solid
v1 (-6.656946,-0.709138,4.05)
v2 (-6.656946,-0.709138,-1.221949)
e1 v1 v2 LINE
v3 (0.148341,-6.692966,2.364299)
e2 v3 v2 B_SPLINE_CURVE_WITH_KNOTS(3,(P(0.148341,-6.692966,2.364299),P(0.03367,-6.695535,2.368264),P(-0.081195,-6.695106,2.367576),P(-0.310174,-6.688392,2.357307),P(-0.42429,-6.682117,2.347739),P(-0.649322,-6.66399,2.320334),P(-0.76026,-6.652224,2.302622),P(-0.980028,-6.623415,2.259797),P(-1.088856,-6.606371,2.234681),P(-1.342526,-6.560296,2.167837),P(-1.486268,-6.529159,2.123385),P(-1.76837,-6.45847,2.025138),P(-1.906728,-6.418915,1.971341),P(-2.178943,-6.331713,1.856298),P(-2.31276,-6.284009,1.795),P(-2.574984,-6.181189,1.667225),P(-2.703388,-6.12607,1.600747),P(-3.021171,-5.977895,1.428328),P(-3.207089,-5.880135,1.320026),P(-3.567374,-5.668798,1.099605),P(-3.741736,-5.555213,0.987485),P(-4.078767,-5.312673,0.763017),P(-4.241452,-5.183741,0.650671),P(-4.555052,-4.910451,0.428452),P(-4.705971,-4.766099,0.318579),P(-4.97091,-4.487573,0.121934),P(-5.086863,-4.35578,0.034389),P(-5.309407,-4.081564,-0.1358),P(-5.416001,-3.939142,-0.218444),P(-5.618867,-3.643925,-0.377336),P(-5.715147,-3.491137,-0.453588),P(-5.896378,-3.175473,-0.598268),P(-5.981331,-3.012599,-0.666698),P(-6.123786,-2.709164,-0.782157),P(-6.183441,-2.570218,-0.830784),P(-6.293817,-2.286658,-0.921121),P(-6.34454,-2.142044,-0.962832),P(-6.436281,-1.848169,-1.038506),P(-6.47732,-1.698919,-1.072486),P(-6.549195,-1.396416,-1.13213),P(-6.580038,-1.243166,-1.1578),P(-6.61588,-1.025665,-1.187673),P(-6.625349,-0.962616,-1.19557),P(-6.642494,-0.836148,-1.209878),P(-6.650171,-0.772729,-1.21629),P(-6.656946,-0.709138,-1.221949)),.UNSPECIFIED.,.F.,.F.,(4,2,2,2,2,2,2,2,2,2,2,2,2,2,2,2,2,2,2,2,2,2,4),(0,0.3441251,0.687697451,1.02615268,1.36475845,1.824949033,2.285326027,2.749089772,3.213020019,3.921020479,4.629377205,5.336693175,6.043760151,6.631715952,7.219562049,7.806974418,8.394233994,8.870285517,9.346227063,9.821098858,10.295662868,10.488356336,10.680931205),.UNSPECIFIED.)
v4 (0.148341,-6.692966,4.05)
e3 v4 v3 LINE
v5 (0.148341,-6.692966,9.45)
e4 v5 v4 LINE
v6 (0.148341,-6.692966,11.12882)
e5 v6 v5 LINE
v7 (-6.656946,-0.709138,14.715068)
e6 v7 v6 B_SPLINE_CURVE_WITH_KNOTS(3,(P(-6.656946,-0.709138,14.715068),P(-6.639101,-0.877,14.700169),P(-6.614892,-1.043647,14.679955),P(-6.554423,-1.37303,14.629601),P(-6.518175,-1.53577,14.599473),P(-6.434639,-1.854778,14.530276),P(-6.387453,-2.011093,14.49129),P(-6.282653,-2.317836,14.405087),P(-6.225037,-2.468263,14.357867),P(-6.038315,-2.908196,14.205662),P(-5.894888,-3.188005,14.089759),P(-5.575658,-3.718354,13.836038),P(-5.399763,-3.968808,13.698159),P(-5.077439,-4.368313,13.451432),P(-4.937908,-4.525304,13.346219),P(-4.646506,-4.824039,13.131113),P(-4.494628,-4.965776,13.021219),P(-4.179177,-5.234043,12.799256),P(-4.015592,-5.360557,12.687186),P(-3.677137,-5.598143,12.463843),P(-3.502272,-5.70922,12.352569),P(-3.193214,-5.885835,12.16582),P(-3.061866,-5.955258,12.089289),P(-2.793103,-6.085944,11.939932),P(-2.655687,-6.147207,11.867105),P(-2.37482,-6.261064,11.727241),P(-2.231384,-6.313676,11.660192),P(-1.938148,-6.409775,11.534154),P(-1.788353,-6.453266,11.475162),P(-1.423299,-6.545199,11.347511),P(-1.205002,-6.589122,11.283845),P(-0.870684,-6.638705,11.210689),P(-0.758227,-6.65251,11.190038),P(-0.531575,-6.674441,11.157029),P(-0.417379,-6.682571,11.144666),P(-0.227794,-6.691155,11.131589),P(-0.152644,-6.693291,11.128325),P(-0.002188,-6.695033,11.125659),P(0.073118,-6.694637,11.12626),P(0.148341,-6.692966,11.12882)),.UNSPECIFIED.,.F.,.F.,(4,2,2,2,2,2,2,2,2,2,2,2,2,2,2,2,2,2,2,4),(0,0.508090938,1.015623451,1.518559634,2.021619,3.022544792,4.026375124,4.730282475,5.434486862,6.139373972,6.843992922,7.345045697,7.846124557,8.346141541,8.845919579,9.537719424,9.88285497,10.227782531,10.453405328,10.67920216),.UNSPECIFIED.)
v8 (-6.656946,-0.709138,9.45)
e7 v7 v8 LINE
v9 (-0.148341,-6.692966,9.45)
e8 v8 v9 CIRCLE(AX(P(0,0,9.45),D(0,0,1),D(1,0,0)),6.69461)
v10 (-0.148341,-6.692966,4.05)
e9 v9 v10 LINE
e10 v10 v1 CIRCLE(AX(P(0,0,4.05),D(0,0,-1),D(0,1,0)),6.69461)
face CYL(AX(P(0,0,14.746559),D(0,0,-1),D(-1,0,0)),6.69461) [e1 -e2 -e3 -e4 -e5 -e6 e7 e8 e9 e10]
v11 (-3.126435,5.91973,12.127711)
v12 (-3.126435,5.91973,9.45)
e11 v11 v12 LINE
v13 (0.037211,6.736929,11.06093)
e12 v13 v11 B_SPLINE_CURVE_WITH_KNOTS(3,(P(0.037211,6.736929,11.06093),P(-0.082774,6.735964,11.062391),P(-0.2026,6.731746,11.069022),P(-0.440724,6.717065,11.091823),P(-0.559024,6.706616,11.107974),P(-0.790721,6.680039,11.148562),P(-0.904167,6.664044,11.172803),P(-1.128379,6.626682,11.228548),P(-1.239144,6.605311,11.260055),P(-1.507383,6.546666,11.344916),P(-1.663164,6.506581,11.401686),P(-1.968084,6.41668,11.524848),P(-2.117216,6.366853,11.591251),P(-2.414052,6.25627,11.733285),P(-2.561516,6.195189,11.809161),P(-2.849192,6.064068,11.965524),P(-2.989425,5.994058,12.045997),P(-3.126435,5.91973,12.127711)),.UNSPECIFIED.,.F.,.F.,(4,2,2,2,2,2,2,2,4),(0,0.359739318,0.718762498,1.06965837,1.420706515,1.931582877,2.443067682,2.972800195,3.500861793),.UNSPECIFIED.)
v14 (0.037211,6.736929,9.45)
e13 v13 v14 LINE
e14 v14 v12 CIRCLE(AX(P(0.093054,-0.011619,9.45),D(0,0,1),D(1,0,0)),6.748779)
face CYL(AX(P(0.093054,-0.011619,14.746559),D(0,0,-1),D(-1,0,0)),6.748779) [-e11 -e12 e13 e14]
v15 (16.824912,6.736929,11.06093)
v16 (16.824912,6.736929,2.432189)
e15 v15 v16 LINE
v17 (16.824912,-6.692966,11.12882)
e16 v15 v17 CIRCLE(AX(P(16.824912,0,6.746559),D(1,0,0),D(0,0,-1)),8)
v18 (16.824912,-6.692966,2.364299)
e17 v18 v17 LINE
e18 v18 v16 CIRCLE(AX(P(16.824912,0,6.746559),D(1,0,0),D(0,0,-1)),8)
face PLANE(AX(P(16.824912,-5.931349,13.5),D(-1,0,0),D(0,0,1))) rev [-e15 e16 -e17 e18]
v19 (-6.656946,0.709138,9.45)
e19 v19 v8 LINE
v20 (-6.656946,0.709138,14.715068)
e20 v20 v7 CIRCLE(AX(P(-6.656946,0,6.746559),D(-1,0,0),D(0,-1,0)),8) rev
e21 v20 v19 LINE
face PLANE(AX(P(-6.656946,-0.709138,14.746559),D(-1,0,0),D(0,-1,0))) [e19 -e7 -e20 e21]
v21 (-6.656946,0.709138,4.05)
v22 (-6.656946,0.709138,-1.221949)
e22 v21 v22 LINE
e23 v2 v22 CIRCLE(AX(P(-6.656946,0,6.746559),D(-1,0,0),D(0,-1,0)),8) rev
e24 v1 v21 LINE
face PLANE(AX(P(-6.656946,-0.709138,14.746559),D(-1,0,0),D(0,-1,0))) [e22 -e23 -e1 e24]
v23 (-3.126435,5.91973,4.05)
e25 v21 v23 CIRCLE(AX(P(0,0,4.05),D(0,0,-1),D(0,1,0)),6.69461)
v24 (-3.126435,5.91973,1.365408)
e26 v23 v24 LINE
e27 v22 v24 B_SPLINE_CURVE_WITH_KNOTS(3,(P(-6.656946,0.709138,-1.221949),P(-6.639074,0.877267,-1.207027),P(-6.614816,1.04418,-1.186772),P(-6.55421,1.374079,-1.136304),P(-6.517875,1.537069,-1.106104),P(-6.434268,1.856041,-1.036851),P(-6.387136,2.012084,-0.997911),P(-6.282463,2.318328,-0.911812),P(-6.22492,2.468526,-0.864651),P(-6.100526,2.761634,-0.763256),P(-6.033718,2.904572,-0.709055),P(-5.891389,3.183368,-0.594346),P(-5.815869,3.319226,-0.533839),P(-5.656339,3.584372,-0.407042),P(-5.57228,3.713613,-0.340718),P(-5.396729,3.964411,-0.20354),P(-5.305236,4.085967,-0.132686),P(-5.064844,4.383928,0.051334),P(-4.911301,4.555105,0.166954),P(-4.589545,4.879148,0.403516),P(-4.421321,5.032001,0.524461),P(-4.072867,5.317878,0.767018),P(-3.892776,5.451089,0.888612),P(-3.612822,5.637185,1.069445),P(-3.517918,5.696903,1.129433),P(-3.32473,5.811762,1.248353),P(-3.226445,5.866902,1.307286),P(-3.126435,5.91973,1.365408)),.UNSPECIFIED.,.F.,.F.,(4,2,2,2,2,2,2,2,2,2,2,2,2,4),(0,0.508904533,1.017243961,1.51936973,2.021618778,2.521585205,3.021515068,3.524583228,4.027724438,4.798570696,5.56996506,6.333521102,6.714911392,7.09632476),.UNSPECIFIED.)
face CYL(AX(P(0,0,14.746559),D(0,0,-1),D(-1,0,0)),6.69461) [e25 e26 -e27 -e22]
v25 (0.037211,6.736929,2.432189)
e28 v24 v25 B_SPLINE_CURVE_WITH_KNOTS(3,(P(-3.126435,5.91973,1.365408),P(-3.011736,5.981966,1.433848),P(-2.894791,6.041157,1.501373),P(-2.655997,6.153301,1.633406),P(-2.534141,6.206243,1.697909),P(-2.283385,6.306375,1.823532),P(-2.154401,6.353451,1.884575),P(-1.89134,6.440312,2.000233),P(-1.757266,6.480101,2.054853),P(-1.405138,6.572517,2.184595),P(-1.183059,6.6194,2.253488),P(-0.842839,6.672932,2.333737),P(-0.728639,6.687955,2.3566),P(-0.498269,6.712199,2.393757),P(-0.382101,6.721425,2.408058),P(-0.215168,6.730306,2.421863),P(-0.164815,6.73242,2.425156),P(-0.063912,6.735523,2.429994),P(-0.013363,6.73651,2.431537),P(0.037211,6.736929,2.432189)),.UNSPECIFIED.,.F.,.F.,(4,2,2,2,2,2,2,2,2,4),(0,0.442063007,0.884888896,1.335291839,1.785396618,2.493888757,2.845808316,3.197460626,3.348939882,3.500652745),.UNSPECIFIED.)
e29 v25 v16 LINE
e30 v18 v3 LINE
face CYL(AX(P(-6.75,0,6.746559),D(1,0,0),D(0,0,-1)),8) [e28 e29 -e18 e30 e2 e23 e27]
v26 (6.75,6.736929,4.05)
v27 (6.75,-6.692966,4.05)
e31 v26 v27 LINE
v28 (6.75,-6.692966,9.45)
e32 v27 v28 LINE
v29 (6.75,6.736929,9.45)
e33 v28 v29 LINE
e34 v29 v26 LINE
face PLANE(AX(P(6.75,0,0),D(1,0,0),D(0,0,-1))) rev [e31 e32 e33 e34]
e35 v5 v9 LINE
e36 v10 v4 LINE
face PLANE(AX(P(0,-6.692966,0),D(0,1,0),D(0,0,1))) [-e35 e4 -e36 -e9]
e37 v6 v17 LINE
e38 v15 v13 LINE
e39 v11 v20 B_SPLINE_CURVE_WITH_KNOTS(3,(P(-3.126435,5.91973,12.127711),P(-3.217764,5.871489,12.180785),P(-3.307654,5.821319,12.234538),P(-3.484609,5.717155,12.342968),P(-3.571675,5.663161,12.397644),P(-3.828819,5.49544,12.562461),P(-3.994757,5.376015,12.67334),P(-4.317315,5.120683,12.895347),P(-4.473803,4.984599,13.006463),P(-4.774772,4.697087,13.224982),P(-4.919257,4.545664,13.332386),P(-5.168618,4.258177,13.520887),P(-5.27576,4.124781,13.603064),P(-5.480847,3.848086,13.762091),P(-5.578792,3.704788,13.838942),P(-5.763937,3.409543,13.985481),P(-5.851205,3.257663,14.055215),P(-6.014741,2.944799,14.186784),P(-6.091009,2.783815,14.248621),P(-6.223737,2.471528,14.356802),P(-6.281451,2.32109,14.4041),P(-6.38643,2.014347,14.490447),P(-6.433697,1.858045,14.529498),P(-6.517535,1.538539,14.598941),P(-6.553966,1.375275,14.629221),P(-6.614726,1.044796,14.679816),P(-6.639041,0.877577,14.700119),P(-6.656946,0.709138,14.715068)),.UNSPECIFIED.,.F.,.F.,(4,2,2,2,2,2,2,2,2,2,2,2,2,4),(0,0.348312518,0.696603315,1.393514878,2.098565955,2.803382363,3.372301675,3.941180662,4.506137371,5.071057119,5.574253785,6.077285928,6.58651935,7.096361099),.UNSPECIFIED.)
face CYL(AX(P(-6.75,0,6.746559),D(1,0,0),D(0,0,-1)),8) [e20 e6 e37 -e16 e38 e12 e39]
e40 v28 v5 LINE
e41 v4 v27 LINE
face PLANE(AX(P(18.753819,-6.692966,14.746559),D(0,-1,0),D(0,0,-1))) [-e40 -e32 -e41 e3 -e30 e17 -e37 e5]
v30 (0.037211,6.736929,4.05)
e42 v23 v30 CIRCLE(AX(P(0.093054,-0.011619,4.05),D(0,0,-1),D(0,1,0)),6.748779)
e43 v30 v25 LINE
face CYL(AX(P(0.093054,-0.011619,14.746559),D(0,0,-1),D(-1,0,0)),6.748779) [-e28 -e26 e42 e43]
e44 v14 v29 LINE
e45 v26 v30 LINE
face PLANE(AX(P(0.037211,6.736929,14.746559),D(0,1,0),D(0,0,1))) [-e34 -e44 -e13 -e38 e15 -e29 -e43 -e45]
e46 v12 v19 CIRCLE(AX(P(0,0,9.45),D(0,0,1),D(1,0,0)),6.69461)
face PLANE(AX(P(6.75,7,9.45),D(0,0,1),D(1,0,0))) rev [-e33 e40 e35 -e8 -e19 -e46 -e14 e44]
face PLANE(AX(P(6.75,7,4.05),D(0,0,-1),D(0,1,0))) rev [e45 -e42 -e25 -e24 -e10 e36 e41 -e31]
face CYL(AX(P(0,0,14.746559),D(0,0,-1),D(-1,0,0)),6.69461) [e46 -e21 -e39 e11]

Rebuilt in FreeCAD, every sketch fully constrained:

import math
import FreeCAD as App
import Part
import Sketcher
from FreeCAD import Vector
Q = App.Units.Quantity


def add_polygon(sketch, points):
    """Adds a closed chain of lines whose ends are joined by coincident constraints."""
    first, n = sketch.GeometryCount, len(points)
    for a, b in zip(points, points[1:] + points[:1]):
        sketch.addGeometry(Part.LineSegment(App.Vector(*a, 0), App.Vector(*b, 0)), False)
    for i in range(n):
        sketch.addConstraint(Sketcher.Constraint("Coincident", first + i, 2, first + (i + 1) % n, 1))

doc = App.newDocument("Part")
params = doc.addObject("Spreadsheet::Sheet", "Params")
for row, (alias, value) in enumerate([
    ("sketch1_width", "20 mm"),
    ("pad1_length", "13.5 mm"),
    ("sketch2_width", "14 mm"),
    ("sketch2_height", "5.4 mm"),
    ("pocket1_length", "13.5 mm"),
    ("sketch3_diameter", "16 mm"),
    ("sketch4_radius", "8 mm"),
    ("pad2_length", "32.5 mm"),
    ("sketch6_height", "5.4 mm"),
    ("pocket4_length", "23.5 mm"),
], start=1):
    params.set(f"A{row}", alias)
    params.set(f"B{row}", "=" + value)
    params.setAlias(f"B{row}", alias)

body = doc.addObject("PartDesign::Body", "Body")

# Sketch on XY plane
sketch1 = body.newObject("Sketcher::SketchObject", "Sketch")
sketch1.AttachmentSupport = (doc.getObject("XY_Plane"), [""])
sketch1.MapMode = "FlatFace"
sketch1.addGeometry([
    Part.LineSegment(Vector(-6.8, 0.7, 0), Vector(-6.8, -0.7, 0)),  # 0
    Part.ArcOfCircle(Part.Circle(Vector(-0.1, 0, 0), Vector(0, 0, 1), 6.7), math.radians(-174), math.radians(-118)),  # 1
    Part.LineSegment(Vector(-3.2, -5.9, 0), Vector(16.8, -5.9, 0)),  # 2
    Part.LineSegment(Vector(16.8, -5.9, 0), Vector(16.8, 5.9, 0)),  # 3
    Part.LineSegment(Vector(16.8, 5.9, 0), Vector(-3.2, 5.9, 0)),  # 4
    Part.ArcOfCircle(Part.Circle(Vector(-0.1, 0, 0), Vector(0, 0, 1), 6.7), math.radians(117), math.radians(174)),  # 5
], False)
sketch1.addConstraint([
    Sketcher.Constraint("Coincident", 0, 2, 1, 1),
    Sketcher.Constraint("Coincident", 1, 2, 2, 1),
    Sketcher.Constraint("Coincident", 2, 2, 3, 1),
    Sketcher.Constraint("Coincident", 3, 2, 4, 1),
    Sketcher.Constraint("Coincident", 4, 2, 5, 1),
    Sketcher.Constraint("Coincident", 5, 2, 0, 1),
    Sketcher.Constraint("Vertical", 0),
    Sketcher.Constraint("Horizontal", 2),
    Sketcher.Constraint("Vertical", 3),
    Sketcher.Constraint("Horizontal", 4),
    Sketcher.Constraint("Coincident", 5, 3, 1, 3),
    Sketcher.Constraint("Equal", 1, 5),
    Sketcher.Constraint("DistanceX", 4, 2, 4, 1, Q("20 mm")),
    Sketcher.Constraint("DistanceX", 0, 2, -1, 1, Q("6.75 mm")),
    Sketcher.Constraint("Radius", 1, Q("6.69461 mm")),
    Sketcher.Constraint("DistanceX", 2, 1, 2, 2, Q("20.044401 mm")),
    Sketcher.Constraint("DistanceY", 3, 1, 3, 2, Q("11.862698 mm")),
    Sketcher.Constraint("DistanceY", 0, 2, 0, 1, Q("1.418275 mm")),
    Sketcher.Constraint("DistanceY", 1, 3, -1, 1, Q("0.011619 mm")),
])
sketch1.setExpression("Constraints[12]", "Params.sketch1_width")
pad1 = body.newObject("PartDesign::Pad", "Pad")
pad1.Profile = sketch1
pad1.setExpression("Length", "Params.pad1_length")

# Sketch on YZ plane
sketch2 = body.newObject("Sketcher::SketchObject", "Sketch001")
sketch2.AttachmentSupport = (doc.getObject("YZ_Plane"), [""])
sketch2.MapMode = "FlatFace"
sketch2.AttachmentOffset = App.Placement(Vector(0, 0, -6.75), App.Rotation())
add_polygon(sketch2, [(7, 4), (-7, 4), (-7, 9), (7, 9)])  # lines 0-3
sketch2.addConstraint([
    Sketcher.Constraint("Horizontal", 0),
    Sketcher.Constraint("Vertical", 1),
    Sketcher.Constraint("Horizontal", 2),
    Sketcher.Constraint("Vertical", 3),
    Sketcher.Constraint("DistanceX", 0, 2, 0, 1, Q("14 mm")),
    Sketcher.Constraint("DistanceY", 1, 1, 1, 2, Q("5.4 mm")),
    Sketcher.Constraint("DistanceX", 0, 2, -1, 1, Q("7 mm")),
    Sketcher.Constraint("DistanceY", -1, 1, 0, 2, Q("4.05 mm")),
])
sketch2.setExpression("Constraints[8]", "Params.sketch2_width")
sketch2.setExpression("Constraints[9]", "Params.sketch2_height")
pocket1 = body.newObject("PartDesign::Pocket", "Pocket")
pocket1.Profile = sketch2
pocket1.setExpression("Length", "Params.pocket1_length")
pocket1.Reversed = True

# Sketch on YZ plane
sketch3 = body.newObject("Sketcher::SketchObject", "Sketch002")
sketch3.AttachmentSupport = (doc.getObject("YZ_Plane"), [""])
sketch3.MapMode = "FlatFace"
sketch3.AttachmentOffset = App.Placement(Vector(0, 0, 16.824912), App.Rotation())
sketch3.addGeometry([
    Part.Circle(Vector(0, 7, 0), Vector(0, 0, 1), 12),
    Part.Circle(Vector(0, 7, 0), Vector(0, 0, 1), 8),
], False)
sketch3.addConstraint([
    Sketcher.Constraint("Coincident", 1, 3, 0, 3),
    Sketcher.Constraint("PointOnObject", 0, 3, -2),
    Sketcher.Constraint("Diameter", 1, Q("16 mm")),
    Sketcher.Constraint("Diameter", 0, Q("24.305627 mm")),
    Sketcher.Constraint("DistanceY", -1, 1, 0, 3, Q("6.746559 mm")),
])
sketch3.setExpression("Constraints[2]", "Params.sketch3_diameter")
pocket2 = body.newObject("PartDesign::Pocket", "Pocket001")
pocket2.Profile = sketch3
pocket2.Type = "ThroughAll"

# Sketch on YZ plane
sketch4 = body.newObject("Sketcher::SketchObject", "Sketch003")
sketch4.AttachmentSupport = (doc.getObject("YZ_Plane"), [""])
sketch4.MapMode = "FlatFace"
sketch4.AttachmentOffset = App.Placement(Vector(0, 0, 16.824912), App.Rotation())
sketch4.addGeometry([
    Part.LineSegment(Vector(-5.9, 1.4, 0), Vector(-5.9, 12.1, 0)),  # 0
    Part.ArcOfCircle(Part.Circle(Vector(0, 6.7, 0), Vector(0, 0, 1), 8), math.radians(138), math.radians(222)),  # 1
    Part.LineSegment(Vector(-4.3, 13.5, 0), Vector(4.3, 13.5, 0)),  # 2
    Part.ArcOfCircle(Part.Circle(Vector(0, 6.7, 0), Vector(0, 0, 1), 8), math.radians(58), math.radians(122)),  # 3
    Part.ArcOfCircle(Part.Circle(Vector(0, 6.7, 0), Vector(0, 0, 1), 8), math.radians(-42), math.radians(42)),  # 4
    Part.LineSegment(Vector(5.9, 12.1, 0), Vector(5.9, 1.4, 0)),  # 5
    Part.ArcOfCircle(Part.Circle(Vector(0, 6.7, 0), Vector(0, 0, 1), 8), math.radians(-90), math.radians(-57)),  # 6
    Part.LineSegment(Vector(4.3, 0, 0), Vector(-4.3, 0, 0)),  # 7
    Part.ArcOfCircle(Part.Circle(Vector(0, 6.7, 0), Vector(0, 0, 1), 8), math.radians(-123), math.radians(-90)),  # 8
], False)
sketch4.addConstraint([
    Sketcher.Constraint("Coincident", 0, 1, 1, 2),
    Sketcher.Constraint("Coincident", 1, 1, 0, 2),
    Sketcher.Constraint("Coincident", 2, 1, 3, 2),
    Sketcher.Constraint("Coincident", 3, 1, 2, 2),
    Sketcher.Constraint("Coincident", 4, 1, 5, 2),
    Sketcher.Constraint("Coincident", 5, 1, 4, 2),
    Sketcher.Constraint("Coincident", 6, 2, 7, 1),
    Sketcher.Constraint("Coincident", 7, 2, 8, 1),
    Sketcher.Constraint("Tangent", 8, 2, 6, 1),
    Sketcher.Constraint("Vertical", 0),
    Sketcher.Constraint("Horizontal", 2),
    Sketcher.Constraint("Vertical", 5),
    Sketcher.Constraint("Horizontal", 7),
    Sketcher.Constraint("Coincident", 3, 3, 1, 3),
    Sketcher.Constraint("Coincident", 4, 3, 1, 3),
    Sketcher.Constraint("Coincident", 6, 3, 1, 3),
    Sketcher.Constraint("Equal", 1, 3),
    Sketcher.Constraint("Equal", 3, 4),
    Sketcher.Constraint("Equal", 4, 6),
    Sketcher.Constraint("Equal", 6, 8),
    Sketcher.Constraint("Symmetric", 6, 2, 7, 2, -1, 1),
    Sketcher.Constraint("PointOnObject", 8, 2, -2),
    Sketcher.Constraint("Horizontal", 0, 1, 4, 1),
    Sketcher.Constraint("Radius", 1, Q("8 mm")),
    Sketcher.Constraint("DistanceY", -1, 1, 2, 1, Q("13.5 mm")),
    Sketcher.Constraint("DistanceX", 7, 2, 7, 1, Q("8.598589 mm")),
    Sketcher.Constraint("DistanceY", -1, 1, 1, 1, Q("12.114902 mm")),
])
sketch4.setExpression("Constraints[23]", "Params.sketch4_radius")
pad2 = body.newObject("PartDesign::Pad", "Pad001")
pad2.Profile = sketch4
pad2.setExpression("Length", "Params.pad2_length")
pad2.Reversed = True

# Sketch on XY plane
sketch5 = body.newObject("Sketcher::SketchObject", "Sketch004")
sketch5.AttachmentSupport = (doc.getObject("XY_Plane"), [""])
sketch5.MapMode = "FlatFace"
sketch5.AttachmentOffset = App.Placement(Vector(0, 0, -10), App.Rotation())
sketch5.addGeometry([
    Part.LineSegment(Vector(-6.7, -0.7, 0), Vector(-6.7, 0.7, 0)),  # 0
    Part.ArcOfCircle(Part.Circle(Vector(0, 0, 0), Vector(0, 0, 1), 6.7), math.radians(140), math.radians(174)),  # 1
    Part.ArcOfCircle(Part.Circle(Vector(0, 0, 0), Vector(0, 0, 1), 6.7), math.radians(118), math.radians(140)),  # 2
    Part.ArcOfCircle(Part.Circle(Vector(0.1, 0, 0), Vector(0, 0, 1), 6.7), math.radians(90), math.radians(118)),  # 3
    Part.LineSegment(Vector(0, 6.7, 0), Vector(17.6, 6.7, 0)),  # 4
    Part.LineSegment(Vector(17.6, 6.7, 0), Vector(17.6, 9.9, 0)),  # 5
    Part.LineSegment(Vector(17.6, 9.9, 0), Vector(-17.2, 9.9, 0)),  # 6
    Part.LineSegment(Vector(-17.2, 9.9, 0), Vector(-17.8, -9.1, 0)),  # 7
    Part.LineSegment(Vector(-17.8, -9.1, 0), Vector(18.8, -9.1, 0)),  # 8
    Part.LineSegment(Vector(18.8, -9.1, 0), Vector(18.8, -6.7, 0)),  # 9
    Part.LineSegment(Vector(18.8, -6.7, 0), Vector(0.1, -6.7, 0)),  # 10
    Part.ArcOfCircle(Part.Circle(Vector(0, 0, 0), Vector(0, 0, 1), 6.7), math.radians(-117), math.radians(-89)),  # 11
    Part.ArcOfCircle(Part.Circle(Vector(0, 0, 0), Vector(0, 0, 1), 6.7), math.radians(-140), math.radians(-117)),  # 12
    Part.ArcOfCircle(Part.Circle(Vector(0, 0, 0), Vector(0, 0, 1), 6.7), math.radians(-174), math.radians(-140)),  # 13
], False)
sketch5.addConstraint([
    Sketcher.Constraint("Coincident", 0, 2, 1, 2),
    Sketcher.Constraint("Tangent", 1, 1, 2, 2),
    Sketcher.Constraint("Coincident", 2, 1, 3, 2),
    Sketcher.Constraint("Coincident", 3, 1, 4, 1),
    Sketcher.Constraint("Coincident", 4, 2, 5, 1),
    Sketcher.Constraint("Coincident", 5, 2, 6, 1),
    Sketcher.Constraint("Coincident", 6, 2, 7, 1),
    Sketcher.Constraint("Coincident", 7, 2, 8, 1),
    Sketcher.Constraint("Coincident", 8, 2, 9, 1),
    Sketcher.Constraint("Coincident", 9, 2, 10, 1),
    Sketcher.Constraint("Coincident", 10, 2, 11, 2),
    Sketcher.Constraint("Tangent", 11, 1, 12, 2),
    Sketcher.Constraint("Tangent", 12, 1, 13, 2),
    Sketcher.Constraint("Coincident", 13, 1, 0, 1),
    Sketcher.Constraint("Vertical", 0),
    Sketcher.Constraint("Horizontal", 4),
    Sketcher.Constraint("Vertical", 5),
    Sketcher.Constraint("Horizontal", 6),
    Sketcher.Constraint("Horizontal", 8),
    Sketcher.Constraint("Vertical", 9),
    Sketcher.Constraint("Horizontal", 10),
    Sketcher.Constraint("Coincident", 1, 3, -1, 1),
    Sketcher.Constraint("Coincident", 11, 3, -1, 1),
    Sketcher.Constraint("Coincident", 13, 3, -1, 1),
    Sketcher.Constraint("Equal", 1, 2),
    Sketcher.Constraint("Equal", 2, 11),
    Sketcher.Constraint("Radius", 1, Q("6.69461 mm")),
    Sketcher.Constraint("Radius", 3, Q("6.748779 mm")),
    Sketcher.Constraint("DistanceY", 10, 2, 11, 1, Q("0.749998 mm")),
    Sketcher.Constraint("DistanceY", 5, 1, 5, 2, Q("3.19978 mm")),
    Sketcher.Constraint("DistanceY", 9, 1, 9, 2, Q("2.44022 mm")),
    Sketcher.Constraint("DistanceY", 2, 1, 3, 1, Q("0.817198 mm")),
    Sketcher.Constraint("DistanceX", 4, 1, 4, 2, Q("17.594136 mm")),
    Sketcher.Constraint("DistanceX", 6, 2, 6, 1, Q("34.784217 mm")),
    Sketcher.Constraint("DistanceX", 8, 1, 8, 2, Q("36.523124 mm")),
    Sketcher.Constraint("DistanceX", 10, 2, 10, 1, Q("18.605477 mm")),
    Sketcher.Constraint("DistanceY", 0, 1, 0, 2, Q("1.418275 mm")),
    Sketcher.Constraint("DistanceY", 3, 3, -1, 1, Q("0.011619 mm")),
    Sketcher.Constraint("DistanceX", -1, 1, 3, 1, Q("0.037211 mm")),
    Sketcher.Constraint("DistanceX", -1, 1, 8, 2, Q("18.753819 mm")),
    Sketcher.Constraint("DistanceX", 0, 2, 1, 1, Q("1.51558 mm")),
    Sketcher.Constraint("DistanceX", 0, 2, 12, 1, Q("1.535049 mm")),
])
pocket3 = body.newObject("PartDesign::Pocket", "Pocket002")
pocket3.Profile = sketch5
pocket3.Type = "ThroughAll"
pocket3.Reversed = True

# Sketch on XZ plane
sketch6 = body.newObject("Sketcher::SketchObject", "Sketch005")
sketch6.AttachmentSupport = (doc.getObject("XZ_Plane"), [""])
sketch6.MapMode = "FlatFace"
sketch6.AttachmentOffset = App.Placement(Vector(0, 0, 6.692966), App.Rotation())
add_polygon(sketch6, [(-9, 9), (-9, 4), (7, 4), (7, 9)])  # lines 0-3
sketch6.addConstraint([
    Sketcher.Constraint("Vertical", 0),
    Sketcher.Constraint("Horizontal", 1),
    Sketcher.Constraint("Vertical", 2),
    Sketcher.Constraint("Horizontal", 3),
    Sketcher.Constraint("DistanceY", 0, 2, 0, 1, Q("5.4 mm")),
    Sketcher.Constraint("DistanceY", -1, 1, 0, 2, Q("4.05 mm")),
    Sketcher.Constraint("DistanceX", -1, 1, 1, 2, Q("6.75 mm")),
    Sketcher.Constraint("DistanceX", 1, 1, 1, 2, Q("15.715396 mm")),
])
sketch6.setExpression("Constraints[8]", "Params.sketch6_height")
pocket4 = body.newObject("PartDesign::Pocket", "Pocket003")
pocket4.Profile = sketch6
pocket4.setExpression("Length", "Params.pocket4_length")

doc.recompute()
